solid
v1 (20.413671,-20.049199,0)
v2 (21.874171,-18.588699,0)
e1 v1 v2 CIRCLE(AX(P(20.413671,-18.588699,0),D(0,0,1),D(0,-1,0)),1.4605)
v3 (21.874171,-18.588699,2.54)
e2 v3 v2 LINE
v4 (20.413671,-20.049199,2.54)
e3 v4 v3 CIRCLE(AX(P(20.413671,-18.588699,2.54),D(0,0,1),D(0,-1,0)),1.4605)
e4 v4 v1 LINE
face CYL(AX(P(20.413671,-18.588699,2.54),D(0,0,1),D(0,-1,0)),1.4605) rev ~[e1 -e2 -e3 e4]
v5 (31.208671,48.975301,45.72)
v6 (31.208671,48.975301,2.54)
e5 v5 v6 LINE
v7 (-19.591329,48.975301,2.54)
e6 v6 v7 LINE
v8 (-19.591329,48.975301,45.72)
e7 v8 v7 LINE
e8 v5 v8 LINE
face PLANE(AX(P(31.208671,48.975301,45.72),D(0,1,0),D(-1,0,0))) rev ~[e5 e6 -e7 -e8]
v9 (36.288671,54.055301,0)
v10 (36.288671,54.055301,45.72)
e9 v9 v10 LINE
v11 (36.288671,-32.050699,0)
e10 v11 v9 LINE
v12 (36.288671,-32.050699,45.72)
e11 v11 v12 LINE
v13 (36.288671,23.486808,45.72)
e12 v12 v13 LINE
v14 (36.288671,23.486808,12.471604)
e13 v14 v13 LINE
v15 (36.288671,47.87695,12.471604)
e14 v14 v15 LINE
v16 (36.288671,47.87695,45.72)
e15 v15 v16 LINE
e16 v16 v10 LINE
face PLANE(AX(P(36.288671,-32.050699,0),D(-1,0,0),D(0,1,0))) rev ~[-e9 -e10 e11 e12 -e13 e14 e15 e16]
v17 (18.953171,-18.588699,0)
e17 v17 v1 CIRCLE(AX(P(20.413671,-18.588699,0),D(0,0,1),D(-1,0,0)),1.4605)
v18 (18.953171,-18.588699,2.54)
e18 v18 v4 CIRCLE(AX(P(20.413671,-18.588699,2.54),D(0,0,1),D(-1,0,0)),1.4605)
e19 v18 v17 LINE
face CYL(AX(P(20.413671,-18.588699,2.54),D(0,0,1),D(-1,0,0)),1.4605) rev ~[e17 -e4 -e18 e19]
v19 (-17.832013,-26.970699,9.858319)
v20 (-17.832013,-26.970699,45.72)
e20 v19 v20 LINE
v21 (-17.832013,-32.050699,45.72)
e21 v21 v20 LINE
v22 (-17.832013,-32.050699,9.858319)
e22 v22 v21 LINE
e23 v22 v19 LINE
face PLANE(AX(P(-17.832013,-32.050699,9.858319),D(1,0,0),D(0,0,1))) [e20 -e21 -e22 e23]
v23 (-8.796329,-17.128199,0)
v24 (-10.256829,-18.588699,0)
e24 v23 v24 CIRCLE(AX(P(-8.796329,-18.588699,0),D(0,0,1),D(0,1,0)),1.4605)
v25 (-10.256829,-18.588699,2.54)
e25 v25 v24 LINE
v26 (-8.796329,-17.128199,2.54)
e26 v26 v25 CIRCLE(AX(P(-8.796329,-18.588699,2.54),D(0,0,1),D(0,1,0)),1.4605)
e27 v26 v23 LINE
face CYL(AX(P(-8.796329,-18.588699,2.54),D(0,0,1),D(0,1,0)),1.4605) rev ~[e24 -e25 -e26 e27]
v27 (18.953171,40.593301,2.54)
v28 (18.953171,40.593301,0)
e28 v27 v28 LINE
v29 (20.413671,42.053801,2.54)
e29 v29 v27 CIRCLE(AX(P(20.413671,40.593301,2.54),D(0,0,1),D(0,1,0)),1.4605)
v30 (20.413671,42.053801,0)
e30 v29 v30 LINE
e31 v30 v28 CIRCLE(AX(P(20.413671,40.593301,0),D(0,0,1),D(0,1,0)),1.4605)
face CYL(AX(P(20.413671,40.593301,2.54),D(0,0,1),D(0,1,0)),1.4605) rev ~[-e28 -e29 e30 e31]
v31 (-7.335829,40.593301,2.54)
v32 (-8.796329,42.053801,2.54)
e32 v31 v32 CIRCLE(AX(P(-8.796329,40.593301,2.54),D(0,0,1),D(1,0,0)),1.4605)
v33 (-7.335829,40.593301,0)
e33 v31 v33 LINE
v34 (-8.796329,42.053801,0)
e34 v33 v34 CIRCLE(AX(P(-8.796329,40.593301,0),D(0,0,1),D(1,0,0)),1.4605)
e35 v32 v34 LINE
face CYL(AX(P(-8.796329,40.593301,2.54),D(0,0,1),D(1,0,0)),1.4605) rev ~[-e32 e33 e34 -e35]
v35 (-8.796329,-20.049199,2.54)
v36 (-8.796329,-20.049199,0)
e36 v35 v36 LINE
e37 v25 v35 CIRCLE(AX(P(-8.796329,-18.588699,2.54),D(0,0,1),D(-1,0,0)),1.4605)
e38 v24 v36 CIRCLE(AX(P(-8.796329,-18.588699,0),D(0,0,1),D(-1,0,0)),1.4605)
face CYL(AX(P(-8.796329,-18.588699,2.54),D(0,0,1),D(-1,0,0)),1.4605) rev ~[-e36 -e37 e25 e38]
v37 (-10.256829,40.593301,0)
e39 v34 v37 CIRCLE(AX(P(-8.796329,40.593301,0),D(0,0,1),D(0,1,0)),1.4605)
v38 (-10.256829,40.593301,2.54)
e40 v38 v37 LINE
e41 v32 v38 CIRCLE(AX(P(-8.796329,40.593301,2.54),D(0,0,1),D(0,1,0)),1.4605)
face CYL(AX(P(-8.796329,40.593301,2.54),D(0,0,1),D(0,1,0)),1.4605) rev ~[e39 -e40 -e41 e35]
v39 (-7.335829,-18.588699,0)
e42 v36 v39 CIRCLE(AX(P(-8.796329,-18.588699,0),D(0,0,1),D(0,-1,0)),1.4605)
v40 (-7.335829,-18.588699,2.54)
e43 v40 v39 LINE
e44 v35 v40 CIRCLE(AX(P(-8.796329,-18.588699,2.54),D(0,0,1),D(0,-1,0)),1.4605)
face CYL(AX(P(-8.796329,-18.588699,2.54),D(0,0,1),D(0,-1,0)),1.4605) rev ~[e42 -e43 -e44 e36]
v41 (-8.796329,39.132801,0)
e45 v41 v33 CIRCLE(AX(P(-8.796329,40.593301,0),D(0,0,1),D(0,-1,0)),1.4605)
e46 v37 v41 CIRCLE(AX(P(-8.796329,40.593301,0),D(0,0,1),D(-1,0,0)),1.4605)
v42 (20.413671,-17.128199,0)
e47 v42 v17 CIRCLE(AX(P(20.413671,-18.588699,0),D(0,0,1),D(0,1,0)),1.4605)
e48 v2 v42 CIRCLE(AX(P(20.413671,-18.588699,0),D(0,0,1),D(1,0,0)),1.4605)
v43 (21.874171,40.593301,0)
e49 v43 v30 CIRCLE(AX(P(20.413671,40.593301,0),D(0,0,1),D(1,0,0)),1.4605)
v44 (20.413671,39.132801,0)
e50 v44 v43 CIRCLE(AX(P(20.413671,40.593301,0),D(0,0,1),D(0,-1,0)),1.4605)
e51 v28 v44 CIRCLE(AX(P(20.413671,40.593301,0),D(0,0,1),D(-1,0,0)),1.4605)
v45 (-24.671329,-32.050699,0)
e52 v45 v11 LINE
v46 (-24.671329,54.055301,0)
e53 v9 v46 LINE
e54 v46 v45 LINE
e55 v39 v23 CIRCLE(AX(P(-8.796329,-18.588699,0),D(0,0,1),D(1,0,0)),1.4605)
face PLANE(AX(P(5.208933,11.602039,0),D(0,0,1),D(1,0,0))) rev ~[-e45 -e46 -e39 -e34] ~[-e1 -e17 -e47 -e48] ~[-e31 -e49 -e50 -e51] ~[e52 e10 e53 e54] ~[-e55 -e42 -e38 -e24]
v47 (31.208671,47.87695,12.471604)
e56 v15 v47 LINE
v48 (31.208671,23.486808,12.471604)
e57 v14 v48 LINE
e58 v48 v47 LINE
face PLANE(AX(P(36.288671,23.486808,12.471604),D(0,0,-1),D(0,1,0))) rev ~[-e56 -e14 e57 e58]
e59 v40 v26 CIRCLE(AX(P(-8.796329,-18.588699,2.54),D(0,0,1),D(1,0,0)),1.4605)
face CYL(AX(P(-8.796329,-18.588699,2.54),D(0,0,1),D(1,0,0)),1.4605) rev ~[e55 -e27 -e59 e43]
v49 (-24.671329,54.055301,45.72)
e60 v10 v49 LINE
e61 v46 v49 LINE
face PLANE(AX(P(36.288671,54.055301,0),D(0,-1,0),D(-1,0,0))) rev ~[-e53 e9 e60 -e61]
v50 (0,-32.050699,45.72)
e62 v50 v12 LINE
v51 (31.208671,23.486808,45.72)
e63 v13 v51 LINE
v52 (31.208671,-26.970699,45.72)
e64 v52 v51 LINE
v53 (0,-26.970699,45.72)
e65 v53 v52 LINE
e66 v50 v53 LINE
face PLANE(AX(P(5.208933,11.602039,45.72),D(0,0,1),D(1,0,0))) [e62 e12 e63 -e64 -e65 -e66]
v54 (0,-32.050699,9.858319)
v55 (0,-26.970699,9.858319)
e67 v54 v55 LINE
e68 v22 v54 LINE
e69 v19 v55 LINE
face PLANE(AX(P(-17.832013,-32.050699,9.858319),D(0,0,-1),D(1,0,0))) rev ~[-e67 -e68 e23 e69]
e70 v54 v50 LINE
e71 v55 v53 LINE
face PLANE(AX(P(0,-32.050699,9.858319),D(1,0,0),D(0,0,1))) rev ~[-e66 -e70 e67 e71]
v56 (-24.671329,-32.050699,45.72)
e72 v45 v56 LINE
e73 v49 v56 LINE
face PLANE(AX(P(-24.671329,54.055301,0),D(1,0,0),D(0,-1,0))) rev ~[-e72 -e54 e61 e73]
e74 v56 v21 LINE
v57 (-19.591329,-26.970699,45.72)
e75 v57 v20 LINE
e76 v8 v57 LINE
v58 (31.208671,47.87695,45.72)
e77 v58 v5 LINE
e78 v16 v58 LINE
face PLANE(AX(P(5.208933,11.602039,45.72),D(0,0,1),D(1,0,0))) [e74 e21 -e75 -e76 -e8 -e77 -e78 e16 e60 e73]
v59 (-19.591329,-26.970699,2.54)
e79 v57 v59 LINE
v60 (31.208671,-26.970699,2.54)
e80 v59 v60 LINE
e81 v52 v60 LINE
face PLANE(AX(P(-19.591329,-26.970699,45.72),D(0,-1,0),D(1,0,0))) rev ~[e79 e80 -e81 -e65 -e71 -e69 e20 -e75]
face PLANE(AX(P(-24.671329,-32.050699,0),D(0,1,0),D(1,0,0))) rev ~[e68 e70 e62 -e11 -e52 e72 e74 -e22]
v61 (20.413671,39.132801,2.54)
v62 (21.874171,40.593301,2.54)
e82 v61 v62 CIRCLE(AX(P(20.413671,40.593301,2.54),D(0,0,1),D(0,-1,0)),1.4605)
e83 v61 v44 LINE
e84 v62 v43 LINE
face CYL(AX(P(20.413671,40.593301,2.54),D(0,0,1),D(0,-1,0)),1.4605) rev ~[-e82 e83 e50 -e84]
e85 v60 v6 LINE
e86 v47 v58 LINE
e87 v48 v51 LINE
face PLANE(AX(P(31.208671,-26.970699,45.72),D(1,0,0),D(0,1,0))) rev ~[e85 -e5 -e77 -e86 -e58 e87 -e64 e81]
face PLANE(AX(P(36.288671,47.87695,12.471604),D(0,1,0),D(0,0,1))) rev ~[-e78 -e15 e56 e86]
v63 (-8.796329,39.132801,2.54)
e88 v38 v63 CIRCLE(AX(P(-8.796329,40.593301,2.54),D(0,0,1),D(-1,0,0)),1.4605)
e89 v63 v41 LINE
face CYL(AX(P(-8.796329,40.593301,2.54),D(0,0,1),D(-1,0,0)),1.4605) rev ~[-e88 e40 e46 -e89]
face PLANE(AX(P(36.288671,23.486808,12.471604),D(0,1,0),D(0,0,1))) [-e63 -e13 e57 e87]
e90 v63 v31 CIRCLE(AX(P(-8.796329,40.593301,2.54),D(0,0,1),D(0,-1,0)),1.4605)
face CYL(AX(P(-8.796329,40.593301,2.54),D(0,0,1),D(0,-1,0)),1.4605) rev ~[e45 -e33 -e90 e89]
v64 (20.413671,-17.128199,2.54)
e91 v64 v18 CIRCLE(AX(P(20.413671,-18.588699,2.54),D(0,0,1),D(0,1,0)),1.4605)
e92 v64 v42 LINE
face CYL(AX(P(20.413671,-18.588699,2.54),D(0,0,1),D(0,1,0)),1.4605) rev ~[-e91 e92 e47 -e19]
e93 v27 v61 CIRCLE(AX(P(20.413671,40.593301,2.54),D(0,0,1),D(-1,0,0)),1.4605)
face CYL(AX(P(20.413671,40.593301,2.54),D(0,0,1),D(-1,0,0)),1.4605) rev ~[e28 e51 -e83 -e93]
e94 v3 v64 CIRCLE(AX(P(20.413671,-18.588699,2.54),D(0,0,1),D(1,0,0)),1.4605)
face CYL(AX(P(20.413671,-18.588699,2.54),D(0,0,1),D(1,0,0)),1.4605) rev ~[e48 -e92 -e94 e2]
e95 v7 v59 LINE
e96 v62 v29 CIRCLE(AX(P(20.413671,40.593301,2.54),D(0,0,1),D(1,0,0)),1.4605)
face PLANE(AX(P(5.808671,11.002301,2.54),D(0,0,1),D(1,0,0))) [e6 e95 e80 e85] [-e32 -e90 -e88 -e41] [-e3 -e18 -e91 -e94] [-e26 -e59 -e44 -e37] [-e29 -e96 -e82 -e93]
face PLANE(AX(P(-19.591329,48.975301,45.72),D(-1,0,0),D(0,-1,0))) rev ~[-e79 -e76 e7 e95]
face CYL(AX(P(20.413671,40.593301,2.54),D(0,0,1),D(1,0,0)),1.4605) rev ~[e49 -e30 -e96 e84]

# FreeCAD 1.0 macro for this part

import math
import FreeCAD as App
import Part
import Sketcher
Q = App.Units.Quantity


def add_polygon(sketch, points):
    """Adds a closed chain of lines whose ends are joined by coincident constraints."""
    first, n = sketch.GeometryCount, len(points)
    for a, b in zip(points, points[1:] + points[:1]):
        sketch.addGeometry(Part.LineSegment(App.Vector(*a, 0), App.Vector(*b, 0)), False)
    for i in range(n):
        sketch.addConstraint(Sketcher.Constraint("Coincident", first + i, 2, first + (i + 1) % n, 1))

doc = App.newDocument("Part")
body = doc.addObject("PartDesign::Body", "Body")

# Sketch on XY plane
sketch1 = doc.addObject("Sketcher::SketchObject", "Sketch")
body.addObject(sketch1)
sketch1.AttachmentSupport = (doc.XY_Plane, [""])
sketch1.MapMode = "FlatFace"
add_polygon(sketch1, [(36, 54), (-25, 54), (-25, -32), (36, -32)])  # lines 0-3
sketch1.addConstraint(Sketcher.Constraint("Horizontal", 0))
sketch1.addConstraint(Sketcher.Constraint("Vertical", 1))
sketch1.addConstraint(Sketcher.Constraint("Horizontal", 2))
sketch1.addConstraint(Sketcher.Constraint("Vertical", 3))
sketch1.addConstraint(Sketcher.Constraint("DistanceX", 0, 2, 0, 1, Q("2.4 in")))
sketch1.addConstraint(Sketcher.Constraint("DistanceY", 1, 2, 1, 1, Q("3.39 in")))
sketch1.addConstraint(Sketcher.Constraint("DistanceY", -1, 1, 0, 2, 54.055301))
sketch1.addConstraint(Sketcher.Constraint("DistanceX", 0, 2, -1, 1, 24.671329))
pad1 = doc.addObject("PartDesign::Pad", "Pad")
body.addObject(pad1)
pad1.Profile = sketch1
pad1.Length = Q("1.8 in")

# Sketch on XY plane
sketch2 = doc.addObject("Sketcher::SketchObject", "Sketch001")
body.addObject(sketch2)
sketch2.AttachmentSupport = (doc.XY_Plane, [""])
sketch2.MapMode = "FlatFace"
sketch2.AttachmentOffset = App.Placement(App.Vector(0, 0, 1.8 * 25.4), App.Rotation())
add_polygon(sketch2, [(-20, 49), (-20, -27), (31, -27), (31, 49)])  # lines 0-3
sketch2.addConstraint(Sketcher.Constraint("Vertical", 0))
sketch2.addConstraint(Sketcher.Constraint("Horizontal", 1))
sketch2.addConstraint(Sketcher.Constraint("Vertical", 2))
sketch2.addConstraint(Sketcher.Constraint("Horizontal", 3))
sketch2.addConstraint(Sketcher.Constraint("DistanceX", 1, 1, 1, 2, Q("2 in")))
sketch2.addConstraint(Sketcher.Constraint("DistanceY", 0, 2, 0, 1, Q("2.99 in")))
sketch2.addConstraint(Sketcher.Constraint("DistanceY", 0, 2, -1, 1, 26.970699))
sketch2.addConstraint(Sketcher.Constraint("DistanceX", 0, 2, -1, 1, 19.591329))
pocket1 = doc.addObject("PartDesign::Pocket", "Pocket")
body.addObject(pocket1)
pocket1.Profile = sketch2
pocket1.Length = Q("1.7 in")

# Sketch on XY plane
sketch3 = doc.addObject("Sketcher::SketchObject", "Sketch002")
body.addObject(sketch3)
sketch3.AttachmentSupport = (doc.XY_Plane, [""])
sketch3.MapMode = "FlatFace"
sketch3.AttachmentOffset = App.Placement(App.Vector(0, 0, 0.1 * 25.4), App.Rotation())
sketch3.addGeometry(Part.ArcOfCircle(Part.Circle(App.Vector(-8.8, 40.6, 0), App.Vector(0, 0, 1), 1.5), math.radians(180), math.radians(270)), False)
sketch3.addGeometry(Part.ArcOfCircle(Part.Circle(App.Vector(-8.8, 40.6, 0), App.Vector(0, 0, 1), 1.5), math.radians(-90), math.radians(0)), False)
sketch3.addGeometry(Part.ArcOfCircle(Part.Circle(App.Vector(-8.8, 40.6, 0), App.Vector(0, 0, 1), 1.5), math.radians(0), math.radians(90)), False)
sketch3.addGeometry(Part.ArcOfCircle(Part.Circle(App.Vector(-8.8, 40.6, 0), App.Vector(0, 0, 1), 1.5), math.radians(90), math.radians(180)), False)
sketch3.addGeometry(Part.ArcOfCircle(Part.Circle(App.Vector(-8.8, -18.6, 0), App.Vector(0, 0, 1), 1.5), math.radians(180), math.radians(270)), False)
sketch3.addGeometry(Part.ArcOfCircle(Part.Circle(App.Vector(-8.8, -18.6, 0), App.Vector(0, 0, 1), 1.5), math.radians(-90), math.radians(0)), False)
sketch3.addGeometry(Part.ArcOfCircle(Part.Circle(App.Vector(-8.8, -18.6, 0), App.Vector(0, 0, 1), 1.5), math.radians(0), math.radians(90)), False)
sketch3.addGeometry(Part.ArcOfCircle(Part.Circle(App.Vector(-8.8, -18.6, 0), App.Vector(0, 0, 1), 1.5), math.radians(90), math.radians(180)), False)
sketch3.addGeometry(Part.ArcOfCircle(Part.Circle(App.Vector(20.4, 40.6, 0), App.Vector(0, 0, 1), 1.5), math.radians(0), math.radians(90)), False)
sketch3.addGeometry(Part.ArcOfCircle(Part.Circle(App.Vector(20.4, 40.6, 0), App.Vector(0, 0, 1), 1.5), math.radians(90), math.radians(180)), False)
sketch3.addGeometry(Part.ArcOfCircle(Part.Circle(App.Vector(20.4, 40.6, 0), App.Vector(0, 0, 1), 1.5), math.radians(180), math.radians(270)), False)
sketch3.addGeometry(Part.ArcOfCircle(Part.Circle(App.Vector(20.4, 40.6, 0), App.Vector(0, 0, 1), 1.5), math.radians(-90), math.radians(0)), False)
sketch3.addGeometry(Part.ArcOfCircle(Part.Circle(App.Vector(20.4, -18.6, 0), App.Vector(0, 0, 1), 1.5), math.radians(0), math.radians(90)), False)
sketch3.addGeometry(Part.ArcOfCircle(Part.Circle(App.Vector(20.4, -18.6, 0), App.Vector(0, 0, 1), 1.5), math.radians(90), math.radians(180)), False)
sketch3.addGeometry(Part.ArcOfCircle(Part.Circle(App.Vector(20.4, -18.6, 0), App.Vector(0, 0, 1), 1.5), math.radians(180), math.radians(270)), False)
sketch3.addGeometry(Part.ArcOfCircle(Part.Circle(App.Vector(20.4, -18.6, 0), App.Vector(0, 0, 1), 1.5), math.radians(-90), math.radians(0)), False)
sketch3.addConstraint(Sketcher.Constraint("Tangent", 0, 2, 1, 1))
sketch3.addConstraint(Sketcher.Constraint("Tangent", 1, 2, 2, 1))
sketch3.addConstraint(Sketcher.Constraint("Tangent", 2, 2, 3, 1))
sketch3.addConstraint(Sketcher.Constraint("Tangent", 3, 2, 0, 1))
sketch3.addConstraint(Sketcher.Constraint("Tangent", 4, 2, 5, 1))
sketch3.addConstraint(Sketcher.Constraint("Tangent", 5, 2, 6, 1))
sketch3.addConstraint(Sketcher.Constraint("Tangent", 6, 2, 7, 1))
sketch3.addConstraint(Sketcher.Constraint("Tangent", 7, 2, 4, 1))
sketch3.addConstraint(Sketcher.Constraint("Tangent", 8, 2, 9, 1))
sketch3.addConstraint(Sketcher.Constraint("Tangent", 9, 2, 10, 1))
sketch3.addConstraint(Sketcher.Constraint("Tangent", 10, 2, 11, 1))
sketch3.addConstraint(Sketcher.Constraint("Tangent", 11, 2, 8, 1))
sketch3.addConstraint(Sketcher.Constraint("Tangent", 12, 2, 13, 1))
sketch3.addConstraint(Sketcher.Constraint("Tangent", 13, 2, 14, 1))
sketch3.addConstraint(Sketcher.Constraint("Tangent", 14, 2, 15, 1))
sketch3.addConstraint(Sketcher.Constraint("Tangent", 15, 2, 12, 1))
sketch3.addConstraint(Sketcher.Constraint("Equal", 0, 1))
sketch3.addConstraint(Sketcher.Constraint("Equal", 3, 4))
sketch3.addConstraint(Sketcher.Constraint("Equal", 4, 5))
sketch3.addConstraint(Sketcher.Constraint("Equal", 7, 8))
sketch3.addConstraint(Sketcher.Constraint("Equal", 8, 9))
sketch3.addConstraint(Sketcher.Constraint("Equal", 11, 12))
sketch3.addConstraint(Sketcher.Constraint("Equal", 12, 13))
sketch3.addConstraint(Sketcher.Constraint("Horizontal", 3, 3, 8, 3))
sketch3.addConstraint(Sketcher.Constraint("Horizontal", 7, 3, 12, 3))
sketch3.addConstraint(Sketcher.Constraint("Horizontal", 11, 3, 1, 2))
sketch3.addConstraint(Sketcher.Constraint("Horizontal", 1, 2, 3, 2))
sketch3.addConstraint(Sketcher.Constraint("Horizontal", 15, 3, 5, 2))
sketch3.addConstraint(Sketcher.Constraint("Horizontal", 5, 2, 7, 2))
sketch3.addConstraint(Sketcher.Constraint("Horizontal", 3, 2, 9, 2))
sketch3.addConstraint(Sketcher.Constraint("Horizontal", 9, 2, 11, 2))
sketch3.addConstraint(Sketcher.Constraint("Horizontal", 7, 2, 13, 2))
sketch3.addConstraint(Sketcher.Constraint("Horizontal", 13, 2, 15, 2))
sketch3.addConstraint(Sketcher.Constraint("Vertical", 3, 3, 4, 3))
sketch3.addConstraint(Sketcher.Constraint("Vertical", 11, 3, 12, 3))
sketch3.addConstraint(Sketcher.Constraint("Vertical", 7, 3, 0, 2))
sketch3.addConstraint(Sketcher.Constraint("Vertical", 0, 2, 2, 2))
sketch3.addConstraint(Sketcher.Constraint("Vertical", 2, 2, 4, 2))
sketch3.addConstraint(Sketcher.Constraint("Vertical", 4, 2, 6, 2))
sketch3.addConstraint(Sketcher.Constraint("Vertical", 15, 3, 8, 2))
sketch3.addConstraint(Sketcher.Constraint("Vertical", 8, 2, 10, 2))
sketch3.addConstraint(Sketcher.Constraint("Vertical", 10, 2, 12, 2))
sketch3.addConstraint(Sketcher.Constraint("Vertical", 12, 2, 14, 2))
sketch3.addConstraint(Sketcher.Constraint("Radius", 0, Q("0.0575 in")))
sketch3.addConstraint(Sketcher.Constraint("DistanceY", 4, 3, 0, 3, Q("2.33 in")))
sketch3.addConstraint(Sketcher.Constraint("DistanceX", 0, 3, 8, 3, Q("1.15 in")))
sketch3.addConstraint(Sketcher.Constraint("DistanceY", -1, 1, 0, 3, 40.593301))
sketch3.addConstraint(Sketcher.Constraint("DistanceX", 0, 3, -1, 1, 8.796329))
pocket2 = doc.addObject("PartDesign::Pocket", "Pocket001")
body.addObject(pocket2)
pocket2.Profile = sketch3
pocket2.Length = Q("1 in")

# Sketch on YZ plane
sketch4 = doc.addObject("Sketcher::SketchObject", "Sketch003")
body.addObject(sketch4)
sketch4.AttachmentSupport = (doc.YZ_Plane, [""])
sketch4.MapMode = "FlatFace"
sketch4.AttachmentOffset = App.Placement(App.Vector(0, 0, 36.288671), App.Rotation())
add_polygon(sketch4, [(23, 46), (23, 12), (48, 12), (48, 46)])  # lines 0-3
sketch4.addConstraint(Sketcher.Constraint("Vertical", 0))
sketch4.addConstraint(Sketcher.Constraint("Horizontal", 1))
sketch4.addConstraint(Sketcher.Constraint("Vertical", 2))
sketch4.addConstraint(Sketcher.Constraint("Horizontal", 3))
sketch4.addConstraint(Sketcher.Constraint("DistanceY", -1, 1, 2, 2, Q("1.8 in")))
sketch4.addConstraint(Sketcher.Constraint("DistanceX", 1, 1, 1, 2, 24.390142))
sketch4.addConstraint(Sketcher.Constraint("DistanceY", 0, 2, 0, 1, 33.248396))
sketch4.addConstraint(Sketcher.Constraint("DistanceX", -1, 1, 1, 2, 47.87695))
pocket3 = doc.addObject("PartDesign::Pocket", "Pocket002")
body.addObject(pocket3)
pocket3.Profile = sketch4
pocket3.Length = Q("1 in")

# Sketch on XZ plane
sketch5 = doc.addObject("Sketcher::SketchObject", "Sketch004")
body.addObject(sketch5)
sketch5.AttachmentSupport = (doc.XZ_Plane, [""])
sketch5.MapMode = "FlatFace"
sketch5.AttachmentOffset = App.Placement(App.Vector(0, 0, 32.050699), App.Rotation())
add_polygon(sketch5, [(-18, 46), (-18, 10), (0, 10), (0, 46)])  # lines 0-3
sketch5.addConstraint(Sketcher.Constraint("Vertical", 0))
sketch5.addConstraint(Sketcher.Constraint("Horizontal", 1))
sketch5.addConstraint(Sketcher.Constraint("Vertical", 2))
sketch5.addConstraint(Sketcher.Constraint("Horizontal", 3))
sketch5.addConstraint(Sketcher.Constraint("PointOnObject", 1, 2, -2))
sketch5.addConstraint(Sketcher.Constraint("DistanceY", -1, 1, 2, 2, Q("1.8 in")))
sketch5.addConstraint(Sketcher.Constraint("DistanceY", 0, 2, 0, 1, 35.861681))
sketch5.addConstraint(Sketcher.Constraint("DistanceX", 1, 1, 1, 2, 17.832013))
pocket4 = doc.addObject("PartDesign::Pocket", "Pocket003")
body.addObject(pocket4)
pocket4.Profile = sketch5
pocket4.Length = Q("1 in")

doc.recompute()
